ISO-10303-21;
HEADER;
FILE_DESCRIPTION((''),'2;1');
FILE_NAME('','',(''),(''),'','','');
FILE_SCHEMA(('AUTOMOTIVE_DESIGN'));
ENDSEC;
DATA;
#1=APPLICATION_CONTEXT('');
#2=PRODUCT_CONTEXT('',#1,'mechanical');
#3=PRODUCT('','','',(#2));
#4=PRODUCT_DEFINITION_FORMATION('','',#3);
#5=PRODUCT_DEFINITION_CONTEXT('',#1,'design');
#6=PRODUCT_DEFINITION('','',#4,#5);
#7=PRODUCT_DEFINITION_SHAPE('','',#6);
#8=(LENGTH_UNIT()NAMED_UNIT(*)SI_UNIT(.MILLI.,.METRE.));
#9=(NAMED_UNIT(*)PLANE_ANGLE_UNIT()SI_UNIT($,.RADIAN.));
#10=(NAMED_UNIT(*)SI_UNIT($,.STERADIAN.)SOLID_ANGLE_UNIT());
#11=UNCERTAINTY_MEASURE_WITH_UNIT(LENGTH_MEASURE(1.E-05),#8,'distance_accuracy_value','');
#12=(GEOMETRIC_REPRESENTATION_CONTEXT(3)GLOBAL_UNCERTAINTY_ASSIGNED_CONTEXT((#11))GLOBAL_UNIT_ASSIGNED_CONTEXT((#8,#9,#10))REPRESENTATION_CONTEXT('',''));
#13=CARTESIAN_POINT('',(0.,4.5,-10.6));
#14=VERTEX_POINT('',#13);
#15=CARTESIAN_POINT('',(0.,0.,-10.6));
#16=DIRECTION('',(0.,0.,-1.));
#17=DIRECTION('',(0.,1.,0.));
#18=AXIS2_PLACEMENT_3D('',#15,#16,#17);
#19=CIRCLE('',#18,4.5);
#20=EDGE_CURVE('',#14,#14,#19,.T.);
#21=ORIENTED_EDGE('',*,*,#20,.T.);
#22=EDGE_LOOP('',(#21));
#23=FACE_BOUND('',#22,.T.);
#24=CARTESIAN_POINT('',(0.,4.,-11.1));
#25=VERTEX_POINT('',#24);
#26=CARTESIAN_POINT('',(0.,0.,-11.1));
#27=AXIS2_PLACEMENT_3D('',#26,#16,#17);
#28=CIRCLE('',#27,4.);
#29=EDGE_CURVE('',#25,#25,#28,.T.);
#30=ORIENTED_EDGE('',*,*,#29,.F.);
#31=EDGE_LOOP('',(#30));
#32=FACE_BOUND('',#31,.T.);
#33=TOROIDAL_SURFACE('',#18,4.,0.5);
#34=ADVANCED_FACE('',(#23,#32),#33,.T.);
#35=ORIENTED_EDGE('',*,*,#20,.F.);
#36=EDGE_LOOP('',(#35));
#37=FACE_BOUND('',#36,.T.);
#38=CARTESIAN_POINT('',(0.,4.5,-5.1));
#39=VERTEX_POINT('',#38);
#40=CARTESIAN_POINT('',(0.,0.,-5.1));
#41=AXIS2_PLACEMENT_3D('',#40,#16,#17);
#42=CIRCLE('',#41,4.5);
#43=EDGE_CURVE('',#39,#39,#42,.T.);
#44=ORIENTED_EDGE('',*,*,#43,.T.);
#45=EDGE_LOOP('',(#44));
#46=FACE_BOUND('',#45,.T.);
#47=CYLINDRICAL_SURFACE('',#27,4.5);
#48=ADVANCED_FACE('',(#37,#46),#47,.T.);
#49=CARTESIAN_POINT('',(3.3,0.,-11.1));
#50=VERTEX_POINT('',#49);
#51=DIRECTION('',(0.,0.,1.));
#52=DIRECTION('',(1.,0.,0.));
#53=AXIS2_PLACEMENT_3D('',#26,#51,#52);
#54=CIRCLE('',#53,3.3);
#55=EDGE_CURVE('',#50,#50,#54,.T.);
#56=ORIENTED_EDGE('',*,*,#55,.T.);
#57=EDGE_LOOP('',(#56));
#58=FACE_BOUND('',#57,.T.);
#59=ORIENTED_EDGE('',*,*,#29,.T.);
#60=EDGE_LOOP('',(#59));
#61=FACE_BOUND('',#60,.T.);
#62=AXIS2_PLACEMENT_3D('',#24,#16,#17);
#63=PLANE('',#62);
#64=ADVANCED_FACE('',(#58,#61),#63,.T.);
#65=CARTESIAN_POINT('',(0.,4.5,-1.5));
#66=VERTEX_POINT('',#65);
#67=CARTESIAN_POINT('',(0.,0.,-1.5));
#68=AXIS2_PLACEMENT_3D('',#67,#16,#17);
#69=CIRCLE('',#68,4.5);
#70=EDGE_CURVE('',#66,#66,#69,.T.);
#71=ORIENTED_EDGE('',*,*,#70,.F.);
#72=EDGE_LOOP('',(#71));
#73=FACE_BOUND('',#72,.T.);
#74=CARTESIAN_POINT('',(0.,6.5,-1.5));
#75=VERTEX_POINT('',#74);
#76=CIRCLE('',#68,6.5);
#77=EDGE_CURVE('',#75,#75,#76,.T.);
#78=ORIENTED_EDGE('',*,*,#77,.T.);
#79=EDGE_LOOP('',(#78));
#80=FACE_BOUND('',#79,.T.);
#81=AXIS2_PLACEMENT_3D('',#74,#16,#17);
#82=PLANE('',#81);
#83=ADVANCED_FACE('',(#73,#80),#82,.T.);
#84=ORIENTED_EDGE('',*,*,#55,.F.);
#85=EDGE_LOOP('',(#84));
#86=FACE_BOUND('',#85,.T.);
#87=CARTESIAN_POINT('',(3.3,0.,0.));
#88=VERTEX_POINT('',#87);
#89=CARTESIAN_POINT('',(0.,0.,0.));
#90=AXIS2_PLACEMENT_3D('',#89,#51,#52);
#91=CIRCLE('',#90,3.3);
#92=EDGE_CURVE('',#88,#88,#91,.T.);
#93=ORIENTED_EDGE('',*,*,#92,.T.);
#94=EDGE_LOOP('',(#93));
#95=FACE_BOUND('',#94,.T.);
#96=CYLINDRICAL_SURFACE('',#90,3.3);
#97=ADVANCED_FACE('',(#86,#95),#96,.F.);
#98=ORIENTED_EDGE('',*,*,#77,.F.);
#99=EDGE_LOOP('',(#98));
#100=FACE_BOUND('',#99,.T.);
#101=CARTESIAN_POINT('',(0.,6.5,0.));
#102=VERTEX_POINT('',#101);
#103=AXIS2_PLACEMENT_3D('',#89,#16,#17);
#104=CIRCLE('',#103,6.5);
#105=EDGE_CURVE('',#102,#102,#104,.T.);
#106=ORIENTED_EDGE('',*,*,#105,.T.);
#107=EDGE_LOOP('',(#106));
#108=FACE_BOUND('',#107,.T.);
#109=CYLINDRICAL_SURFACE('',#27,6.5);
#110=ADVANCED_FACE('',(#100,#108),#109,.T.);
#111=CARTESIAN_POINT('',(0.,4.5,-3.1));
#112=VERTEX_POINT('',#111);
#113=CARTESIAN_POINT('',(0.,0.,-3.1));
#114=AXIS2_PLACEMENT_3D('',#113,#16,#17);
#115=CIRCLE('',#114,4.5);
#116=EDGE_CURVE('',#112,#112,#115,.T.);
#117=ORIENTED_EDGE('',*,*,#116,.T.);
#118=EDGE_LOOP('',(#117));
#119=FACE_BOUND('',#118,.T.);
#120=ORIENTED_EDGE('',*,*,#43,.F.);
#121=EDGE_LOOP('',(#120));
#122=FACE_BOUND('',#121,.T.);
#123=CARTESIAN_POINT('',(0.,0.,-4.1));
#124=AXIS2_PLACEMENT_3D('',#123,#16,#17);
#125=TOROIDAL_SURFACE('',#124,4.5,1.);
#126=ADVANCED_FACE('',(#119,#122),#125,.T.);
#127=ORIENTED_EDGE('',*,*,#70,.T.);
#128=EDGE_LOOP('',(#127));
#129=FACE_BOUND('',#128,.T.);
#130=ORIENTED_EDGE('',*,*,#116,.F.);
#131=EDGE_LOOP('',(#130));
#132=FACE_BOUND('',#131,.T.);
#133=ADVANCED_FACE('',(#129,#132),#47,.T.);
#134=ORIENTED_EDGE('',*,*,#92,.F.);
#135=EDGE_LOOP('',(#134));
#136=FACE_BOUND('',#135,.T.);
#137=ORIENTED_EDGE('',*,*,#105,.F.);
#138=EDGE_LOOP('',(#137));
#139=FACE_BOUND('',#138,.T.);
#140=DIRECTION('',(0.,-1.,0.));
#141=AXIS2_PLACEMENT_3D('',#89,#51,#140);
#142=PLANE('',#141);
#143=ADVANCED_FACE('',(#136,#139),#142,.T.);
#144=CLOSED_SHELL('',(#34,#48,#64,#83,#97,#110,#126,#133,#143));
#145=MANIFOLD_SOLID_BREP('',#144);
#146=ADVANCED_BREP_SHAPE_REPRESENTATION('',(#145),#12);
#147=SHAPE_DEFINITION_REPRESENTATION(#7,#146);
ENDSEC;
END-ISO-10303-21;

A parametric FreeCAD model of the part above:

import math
import FreeCAD as App
import Part
import Sketcher

V = App.Vector

doc = App.newDocument("Part")
body = doc.addObject("PartDesign::Body", "Body")

sketch1 = body.newObject("Sketcher::SketchObject", "Sketch")
sketch1.AttachmentSupport = (doc.getObject("YZ_Plane"), [""])
sketch1.MapMode = "FlatFace"
sketch1.addGeometry([
    Part.LineSegment(V(6.5, 0, 0), V(0, 0, 0)),
    Part.LineSegment(V(0, 0, 0), V(0, -11.1, 0)),
    Part.LineSegment(V(0, -11.1, 0), V(4, -11.1, 0)),
    Part.ArcOfCircle(Part.Circle(V(4, -10.6, 0), V(0, 0, 1), 0.5), math.radians(-90), math.radians(0)),
    Part.LineSegment(V(4.5, -10.6, 0), V(4.5, -5.1, 0)),
    Part.ArcOfCircle(Part.Circle(V(4.5, -4.1, 0), V(0, 0, 1), 1), math.radians(-90), math.radians(90)),
    Part.LineSegment(V(4.5, -3.1, 0), V(4.5, -1.5, 0)),
    Part.LineSegment(V(4.5, -1.5, 0), V(6.5, -1.5, 0)),
    Part.LineSegment(V(6.5, -1.5, 0), V(6.5, 0, 0)),
], False)
sketch1.addConstraint([
    Sketcher.Constraint("Coincident", 0, 2, 1, 1),
    Sketcher.Constraint("Coincident", 1, 2, 2, 1),
    Sketcher.Constraint("Tangent", 2, 2, 3, 1),
    Sketcher.Constraint("Tangent", 3, 2, 4, 1),
    Sketcher.Constraint("Coincident", 4, 2, 5, 1),
    Sketcher.Constraint("Coincident", 5, 2, 6, 1),
    Sketcher.Constraint("Coincident", 6, 2, 7, 1),
    Sketcher.Constraint("Coincident", 7, 2, 8, 1),
    Sketcher.Constraint("Coincident", 8, 2, 0, 1),
    Sketcher.Constraint("Horizontal", 0),
    Sketcher.Constraint("Vertical", 1),
    Sketcher.Constraint("Horizontal", 2),
    Sketcher.Constraint("Vertical", 4),
    Sketcher.Constraint("Vertical", 6),
    Sketcher.Constraint("Horizontal", 7),
    Sketcher.Constraint("Vertical", 8),
    Sketcher.Constraint("Coincident", 0, 2, -1, 1),
    Sketcher.Constraint("Vertical", 5, 3, 3, 2),
    Sketcher.Constraint("Vertical", 4, 2, 5, 2),
    Sketcher.Constraint("Radius", 5, 1.0),
    Sketcher.Constraint("Radius", 3, 0.5),
    Sketcher.Constraint("DistanceX", 2, 1, 2, 2, 4.0),
    Sketcher.Constraint("DistanceX", 7, 1, 7, 2, 2.0),
    Sketcher.Constraint("DistanceY", 1, 2, 1, 1, 11.1),
    Sketcher.Constraint("DistanceY", 4, 1, 4, 2, 5.5),
    Sketcher.Constraint("DistanceY", 6, 1, 6, 2, 1.6),
])
revolution = body.newObject("PartDesign::Revolution", "Revolution")
revolution.Profile = sketch1
revolution.ReferenceAxis = (sketch1, ["V_Axis"])
revolution.Angle = 360

sketch2 = body.newObject("Sketcher::SketchObject", "Sketch001")
sketch2.AttachmentSupport = (doc.getObject("XY_Plane"), [""])
sketch2.MapMode = "FlatFace"
sketch2.addGeometry(Part.Circle(V(0, 0, 0), V(0, 0, 1), 3.3), False)
sketch2.addConstraint([
    Sketcher.Constraint("Coincident", 0, 3, -1, 1),
    Sketcher.Constraint("Diameter", 0, 6.6),
])
doc.recompute()
hole = body.newObject("PartDesign::Hole", "Hole")
hole.Profile = sketch2
hole.ThreadType = "None"
hole.Diameter = 6.6
hole.DepthType = "ThroughAll"

doc.recompute()
